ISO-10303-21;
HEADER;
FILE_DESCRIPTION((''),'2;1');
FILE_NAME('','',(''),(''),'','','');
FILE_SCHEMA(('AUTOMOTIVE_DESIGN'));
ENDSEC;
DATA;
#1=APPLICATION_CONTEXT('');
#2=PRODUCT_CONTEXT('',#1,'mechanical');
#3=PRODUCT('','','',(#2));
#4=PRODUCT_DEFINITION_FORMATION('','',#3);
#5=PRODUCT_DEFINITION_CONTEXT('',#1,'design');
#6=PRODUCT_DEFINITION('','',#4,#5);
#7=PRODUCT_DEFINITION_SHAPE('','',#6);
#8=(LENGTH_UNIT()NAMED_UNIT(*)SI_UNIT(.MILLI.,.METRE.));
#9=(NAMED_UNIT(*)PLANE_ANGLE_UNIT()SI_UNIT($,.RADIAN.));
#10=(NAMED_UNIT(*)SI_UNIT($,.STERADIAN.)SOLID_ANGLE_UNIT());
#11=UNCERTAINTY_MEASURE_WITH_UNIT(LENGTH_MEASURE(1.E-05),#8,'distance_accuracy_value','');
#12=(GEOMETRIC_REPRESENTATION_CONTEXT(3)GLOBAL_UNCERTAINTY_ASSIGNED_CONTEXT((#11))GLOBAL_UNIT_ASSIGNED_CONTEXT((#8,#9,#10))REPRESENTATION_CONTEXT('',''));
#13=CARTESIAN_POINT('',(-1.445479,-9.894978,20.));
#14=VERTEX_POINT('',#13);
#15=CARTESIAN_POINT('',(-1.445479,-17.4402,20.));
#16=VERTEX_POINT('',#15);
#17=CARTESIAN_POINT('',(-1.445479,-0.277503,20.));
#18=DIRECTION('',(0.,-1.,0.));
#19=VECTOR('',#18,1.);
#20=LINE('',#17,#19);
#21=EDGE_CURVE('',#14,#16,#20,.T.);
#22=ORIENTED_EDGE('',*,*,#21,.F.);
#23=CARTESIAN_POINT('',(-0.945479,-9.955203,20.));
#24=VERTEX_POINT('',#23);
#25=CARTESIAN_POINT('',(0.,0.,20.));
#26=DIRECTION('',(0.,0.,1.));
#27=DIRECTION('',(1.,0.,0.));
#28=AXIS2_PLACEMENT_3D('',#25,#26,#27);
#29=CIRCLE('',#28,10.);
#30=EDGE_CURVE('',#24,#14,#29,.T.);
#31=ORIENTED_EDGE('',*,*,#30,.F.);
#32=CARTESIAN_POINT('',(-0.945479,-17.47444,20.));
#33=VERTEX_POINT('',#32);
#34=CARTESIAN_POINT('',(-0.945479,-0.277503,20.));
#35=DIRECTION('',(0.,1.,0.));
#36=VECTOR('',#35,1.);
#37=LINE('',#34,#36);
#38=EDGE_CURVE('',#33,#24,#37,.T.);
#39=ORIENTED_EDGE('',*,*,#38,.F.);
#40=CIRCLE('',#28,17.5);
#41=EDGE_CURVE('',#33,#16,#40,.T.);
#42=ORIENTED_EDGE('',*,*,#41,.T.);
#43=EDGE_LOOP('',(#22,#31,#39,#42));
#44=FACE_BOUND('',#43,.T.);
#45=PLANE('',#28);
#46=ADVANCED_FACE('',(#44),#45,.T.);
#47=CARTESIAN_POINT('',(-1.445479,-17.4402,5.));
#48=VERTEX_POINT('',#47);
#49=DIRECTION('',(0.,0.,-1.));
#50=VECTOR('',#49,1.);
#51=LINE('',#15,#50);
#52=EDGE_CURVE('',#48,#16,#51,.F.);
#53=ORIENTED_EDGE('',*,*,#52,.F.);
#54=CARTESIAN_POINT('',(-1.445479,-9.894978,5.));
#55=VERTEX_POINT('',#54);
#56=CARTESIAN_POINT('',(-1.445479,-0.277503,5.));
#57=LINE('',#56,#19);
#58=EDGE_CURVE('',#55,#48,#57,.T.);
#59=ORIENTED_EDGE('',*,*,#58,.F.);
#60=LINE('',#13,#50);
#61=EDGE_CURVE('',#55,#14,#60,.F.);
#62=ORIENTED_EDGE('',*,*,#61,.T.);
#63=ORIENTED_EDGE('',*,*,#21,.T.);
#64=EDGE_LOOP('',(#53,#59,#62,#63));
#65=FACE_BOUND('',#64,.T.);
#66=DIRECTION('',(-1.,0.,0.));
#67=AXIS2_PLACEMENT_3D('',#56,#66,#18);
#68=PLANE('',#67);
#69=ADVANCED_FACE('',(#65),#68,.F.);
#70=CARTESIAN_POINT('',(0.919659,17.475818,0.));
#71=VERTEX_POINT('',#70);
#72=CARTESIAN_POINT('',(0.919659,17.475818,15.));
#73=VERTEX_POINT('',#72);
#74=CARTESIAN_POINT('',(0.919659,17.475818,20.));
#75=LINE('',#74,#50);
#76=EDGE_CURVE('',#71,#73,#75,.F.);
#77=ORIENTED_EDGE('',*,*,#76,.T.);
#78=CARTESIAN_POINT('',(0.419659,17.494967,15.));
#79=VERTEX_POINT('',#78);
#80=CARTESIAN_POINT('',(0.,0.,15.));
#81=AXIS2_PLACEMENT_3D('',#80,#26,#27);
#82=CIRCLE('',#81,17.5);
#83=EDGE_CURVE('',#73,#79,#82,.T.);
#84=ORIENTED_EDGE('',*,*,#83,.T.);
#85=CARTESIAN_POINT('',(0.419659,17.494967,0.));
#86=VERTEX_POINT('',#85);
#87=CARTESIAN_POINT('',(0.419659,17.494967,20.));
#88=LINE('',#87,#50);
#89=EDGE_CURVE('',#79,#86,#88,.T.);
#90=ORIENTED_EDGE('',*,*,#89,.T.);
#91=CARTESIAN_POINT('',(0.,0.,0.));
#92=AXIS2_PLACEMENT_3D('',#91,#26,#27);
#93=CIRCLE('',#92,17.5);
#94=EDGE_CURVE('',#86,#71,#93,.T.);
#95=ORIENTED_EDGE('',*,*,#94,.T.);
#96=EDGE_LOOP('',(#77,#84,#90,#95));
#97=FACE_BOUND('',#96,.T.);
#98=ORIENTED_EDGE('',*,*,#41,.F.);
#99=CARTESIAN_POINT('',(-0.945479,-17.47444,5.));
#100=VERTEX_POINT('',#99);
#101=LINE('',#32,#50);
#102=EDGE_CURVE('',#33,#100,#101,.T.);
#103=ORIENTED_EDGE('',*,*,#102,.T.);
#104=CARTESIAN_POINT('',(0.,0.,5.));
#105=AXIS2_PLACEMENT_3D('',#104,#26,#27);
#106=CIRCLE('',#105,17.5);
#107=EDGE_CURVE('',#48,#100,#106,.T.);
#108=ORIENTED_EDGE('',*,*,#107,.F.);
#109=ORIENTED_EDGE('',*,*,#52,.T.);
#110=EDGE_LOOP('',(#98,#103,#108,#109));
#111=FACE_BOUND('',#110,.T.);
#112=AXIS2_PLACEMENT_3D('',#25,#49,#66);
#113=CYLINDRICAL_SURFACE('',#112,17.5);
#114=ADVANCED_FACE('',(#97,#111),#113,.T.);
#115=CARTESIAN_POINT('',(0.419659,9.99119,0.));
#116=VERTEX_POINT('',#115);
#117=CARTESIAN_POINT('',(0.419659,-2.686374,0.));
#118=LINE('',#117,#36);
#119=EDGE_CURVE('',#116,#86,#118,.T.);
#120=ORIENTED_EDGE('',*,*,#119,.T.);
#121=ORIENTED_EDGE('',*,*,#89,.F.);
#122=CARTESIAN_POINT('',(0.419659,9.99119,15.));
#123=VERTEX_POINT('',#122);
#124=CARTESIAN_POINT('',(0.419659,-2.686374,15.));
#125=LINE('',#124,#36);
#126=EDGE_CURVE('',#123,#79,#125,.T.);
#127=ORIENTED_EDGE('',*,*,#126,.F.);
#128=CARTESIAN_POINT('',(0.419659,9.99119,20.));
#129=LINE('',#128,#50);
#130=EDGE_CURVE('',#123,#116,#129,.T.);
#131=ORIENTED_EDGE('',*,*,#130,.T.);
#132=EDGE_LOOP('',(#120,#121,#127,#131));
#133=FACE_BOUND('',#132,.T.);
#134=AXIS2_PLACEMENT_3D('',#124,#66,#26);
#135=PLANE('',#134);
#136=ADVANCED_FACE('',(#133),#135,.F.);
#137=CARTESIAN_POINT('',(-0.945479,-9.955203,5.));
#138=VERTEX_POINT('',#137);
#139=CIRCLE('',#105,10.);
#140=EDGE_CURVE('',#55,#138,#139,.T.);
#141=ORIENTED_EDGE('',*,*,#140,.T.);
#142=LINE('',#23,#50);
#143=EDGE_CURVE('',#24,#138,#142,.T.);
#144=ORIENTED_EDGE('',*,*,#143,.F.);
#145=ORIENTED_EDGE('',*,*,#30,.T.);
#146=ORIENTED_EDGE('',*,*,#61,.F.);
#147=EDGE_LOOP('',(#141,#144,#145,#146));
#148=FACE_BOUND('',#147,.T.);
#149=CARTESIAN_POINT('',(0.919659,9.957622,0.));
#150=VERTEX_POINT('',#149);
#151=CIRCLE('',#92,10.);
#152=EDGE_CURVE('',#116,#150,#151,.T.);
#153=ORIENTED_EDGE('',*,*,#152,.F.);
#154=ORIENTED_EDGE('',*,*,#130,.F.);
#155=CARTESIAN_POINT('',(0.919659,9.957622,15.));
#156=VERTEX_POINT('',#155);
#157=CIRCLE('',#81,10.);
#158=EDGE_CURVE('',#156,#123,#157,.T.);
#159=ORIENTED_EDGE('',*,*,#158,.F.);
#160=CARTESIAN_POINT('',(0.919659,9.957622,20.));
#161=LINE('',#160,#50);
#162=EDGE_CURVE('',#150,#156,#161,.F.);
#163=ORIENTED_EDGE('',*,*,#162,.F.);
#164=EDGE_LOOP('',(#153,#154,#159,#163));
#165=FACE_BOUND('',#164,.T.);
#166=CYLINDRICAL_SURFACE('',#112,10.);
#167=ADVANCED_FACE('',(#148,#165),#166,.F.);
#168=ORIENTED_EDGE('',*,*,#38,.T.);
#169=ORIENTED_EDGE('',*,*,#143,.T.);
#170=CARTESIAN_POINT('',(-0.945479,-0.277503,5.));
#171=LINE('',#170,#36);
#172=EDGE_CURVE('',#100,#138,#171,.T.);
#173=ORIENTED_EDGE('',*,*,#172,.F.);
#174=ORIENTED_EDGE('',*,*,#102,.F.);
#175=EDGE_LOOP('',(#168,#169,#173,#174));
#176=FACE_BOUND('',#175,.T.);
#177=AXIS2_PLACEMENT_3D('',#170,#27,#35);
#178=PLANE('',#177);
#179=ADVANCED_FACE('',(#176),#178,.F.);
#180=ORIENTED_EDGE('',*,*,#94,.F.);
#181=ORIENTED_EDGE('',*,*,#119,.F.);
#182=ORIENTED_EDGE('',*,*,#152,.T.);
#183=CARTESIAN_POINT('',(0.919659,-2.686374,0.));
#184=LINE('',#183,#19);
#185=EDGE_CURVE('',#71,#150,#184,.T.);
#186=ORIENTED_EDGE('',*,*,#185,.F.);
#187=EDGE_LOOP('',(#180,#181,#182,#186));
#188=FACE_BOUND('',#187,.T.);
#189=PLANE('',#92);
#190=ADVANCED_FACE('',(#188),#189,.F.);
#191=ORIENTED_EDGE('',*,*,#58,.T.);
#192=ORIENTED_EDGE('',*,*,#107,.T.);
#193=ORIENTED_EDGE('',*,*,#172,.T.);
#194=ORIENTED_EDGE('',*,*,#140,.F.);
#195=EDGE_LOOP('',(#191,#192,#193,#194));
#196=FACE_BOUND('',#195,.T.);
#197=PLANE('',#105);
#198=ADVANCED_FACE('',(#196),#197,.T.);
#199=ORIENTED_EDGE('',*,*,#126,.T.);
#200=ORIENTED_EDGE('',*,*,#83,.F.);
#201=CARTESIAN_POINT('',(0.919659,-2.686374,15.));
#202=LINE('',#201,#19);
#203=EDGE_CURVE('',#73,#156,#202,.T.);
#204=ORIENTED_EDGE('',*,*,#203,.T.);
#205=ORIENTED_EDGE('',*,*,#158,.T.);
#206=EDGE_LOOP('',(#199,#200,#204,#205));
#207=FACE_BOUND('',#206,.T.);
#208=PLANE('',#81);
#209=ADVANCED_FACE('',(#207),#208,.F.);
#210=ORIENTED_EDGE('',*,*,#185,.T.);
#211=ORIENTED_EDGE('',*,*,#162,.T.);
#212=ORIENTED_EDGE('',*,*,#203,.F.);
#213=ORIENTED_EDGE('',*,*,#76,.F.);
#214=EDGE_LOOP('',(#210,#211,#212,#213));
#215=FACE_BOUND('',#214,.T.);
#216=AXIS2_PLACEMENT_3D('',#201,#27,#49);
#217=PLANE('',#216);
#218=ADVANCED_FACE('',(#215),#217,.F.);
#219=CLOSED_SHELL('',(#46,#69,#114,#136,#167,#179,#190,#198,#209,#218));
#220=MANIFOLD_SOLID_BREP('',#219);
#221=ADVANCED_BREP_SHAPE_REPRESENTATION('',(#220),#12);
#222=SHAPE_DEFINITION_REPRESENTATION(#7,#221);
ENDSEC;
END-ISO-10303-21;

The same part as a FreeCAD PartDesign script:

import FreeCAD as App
import Part
import Sketcher

V = App.Vector


def add_polygon(sketch, points):
    """Adds a closed chain of lines whose ends are joined by coincident constraints."""
    first, n = sketch.GeometryCount, len(points)
    for a, b in zip(points, points[1:] + points[:1]):
        sketch.addGeometry(Part.LineSegment(App.Vector(*a, 0), App.Vector(*b, 0)), False)
    for i in range(n):
        sketch.addConstraint(Sketcher.Constraint("Coincident", first + i, 2, first + (i + 1) % n, 1))

doc = App.newDocument("Part")
body = doc.addObject("PartDesign::Body", "Body")

# Sketch on XY plane
sketch1 = doc.addObject("Sketcher::SketchObject", "Sketch")
body.addObject(sketch1)
sketch1.AttachmentSupport = (doc.XY_Plane, [""])
sketch1.MapMode = "FlatFace"
sketch1.addGeometry([
    Part.Circle(V(0, 0, 0), V(0, 0, 1), 17.5),
    Part.Circle(V(0, 0, 0), V(0, 0, 1), 10),
], False)
sketch1.addConstraint([
    Sketcher.Constraint("Coincident", 0, 3, -1, 1),
    Sketcher.Constraint("Coincident", 1, 3, -1, 1),
    Sketcher.Constraint("Diameter", 0, 35.0),
    Sketcher.Constraint("Diameter", 1, 20.0),
])
pad1 = doc.addObject("PartDesign::Pad", "Pad")
body.addObject(pad1)
pad1.Profile = sketch1
pad1.Length = 20

# Sketch on XY plane
sketch2 = doc.addObject("Sketcher::SketchObject", "Sketch001")
body.addObject(sketch2)
sketch2.AttachmentSupport = (doc.XY_Plane, [""])
sketch2.MapMode = "FlatFace"
sketch2.AttachmentOffset = App.Placement(V(0, 0, 20), App.Rotation())
add_polygon(sketch2, [(-1.445479, -0.277503), (-1.445479, -19.579066), (-0.945479, -19.579066), (-0.945479, -0.277503)])  # lines 0-3
sketch2.addConstraint([
    Sketcher.Constraint("Vertical", 0),
    Sketcher.Constraint("Horizontal", 1),
    Sketcher.Constraint("Vertical", 2),
    Sketcher.Constraint("Horizontal", 3),
    Sketcher.Constraint("DistanceX", 1, 1, 1, 2, 0.5),
    Sketcher.Constraint("DistanceY", 0, 2, 0, 1, 19.301563),
    Sketcher.Constraint("DistanceX", 0, 2, -1, 1, 1.445479),
    Sketcher.Constraint("DistanceY", 0, 2, -1, 1, 19.579066),
])
pocket1 = doc.addObject("PartDesign::Pocket", "Pocket")
body.addObject(pocket1)
pocket1.Profile = sketch2
pocket1.Length = 15

# Sketch on XY plane
sketch3 = doc.addObject("Sketcher::SketchObject", "Sketch002")
body.addObject(sketch3)
sketch3.AttachmentSupport = (doc.XY_Plane, [""])
sketch3.MapMode = "FlatFace"
add_polygon(sketch3, [(0.919659, 18.126972), (0.919659, -2.686374), (0.419659, -2.686374), (0.419659, 18.126972)])  # lines 0-3
sketch3.addConstraint([
    Sketcher.Constraint("Vertical", 0),
    Sketcher.Constraint("Horizontal", 1),
    Sketcher.Constraint("Vertical", 2),
    Sketcher.Constraint("Horizontal", 3),
    Sketcher.Constraint("DistanceX", 1, 2, 1, 1, 0.5),
    Sketcher.Constraint("DistanceY", 0, 2, 0, 1, 20.813345),
    Sketcher.Constraint("DistanceX", -1, 1, 0, 2, 0.919659),
    Sketcher.Constraint("DistanceY", -1, 1, 2, 2, 18.126972),
])
pocket2 = doc.addObject("PartDesign::Pocket", "Pocket001")
body.addObject(pocket2)
pocket2.Profile = sketch3
pocket2.Length = 15
pocket2.Reversed = True

doc.recompute()
